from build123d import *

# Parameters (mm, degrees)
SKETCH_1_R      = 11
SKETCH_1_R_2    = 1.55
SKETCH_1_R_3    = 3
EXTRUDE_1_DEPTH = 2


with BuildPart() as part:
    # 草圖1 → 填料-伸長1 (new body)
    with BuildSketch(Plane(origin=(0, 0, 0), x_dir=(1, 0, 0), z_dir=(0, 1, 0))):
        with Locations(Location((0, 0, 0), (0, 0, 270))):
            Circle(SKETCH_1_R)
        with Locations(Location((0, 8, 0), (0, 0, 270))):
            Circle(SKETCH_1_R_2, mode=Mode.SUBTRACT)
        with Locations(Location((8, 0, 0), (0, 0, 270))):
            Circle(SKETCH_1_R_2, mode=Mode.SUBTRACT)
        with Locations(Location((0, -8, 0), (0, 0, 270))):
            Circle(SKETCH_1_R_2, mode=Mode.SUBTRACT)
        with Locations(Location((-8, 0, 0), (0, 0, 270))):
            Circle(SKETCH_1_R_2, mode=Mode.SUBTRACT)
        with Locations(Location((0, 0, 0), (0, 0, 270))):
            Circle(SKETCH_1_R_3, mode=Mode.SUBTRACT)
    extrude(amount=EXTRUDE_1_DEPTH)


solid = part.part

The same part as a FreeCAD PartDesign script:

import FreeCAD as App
import Part
import Sketcher
from FreeCAD import Vector
Q = App.Units.Quantity

doc = App.newDocument("Part")
params = doc.addObject("Spreadsheet::Sheet", "Params")
for row, (alias, value) in enumerate([
    ("sketch1_diameter", "22 mm"),
    ("sketch1_diameter2", "6 mm"),
    ("sketch1_diameter3", "3.1 mm"),
    ("pad1_length", "2 mm"),
], start=1):
    params.set(f"A{row}", alias)
    params.set(f"B{row}", "=" + value)
    params.setAlias(f"B{row}", alias)

body = doc.addObject("PartDesign::Body", "Body")

# Sketch on XZ plane
sketch1 = body.newObject("Sketcher::SketchObject", "Sketch")
sketch1.AttachmentSupport = (doc.getObject("XZ_Plane"), [""])
sketch1.MapMode = "FlatFace"
sketch1.addGeometry([
    Part.Circle(Vector(0, 0, 0), Vector(0, 0, 1), 11),  # 0
    Part.Circle(Vector(-8, 0, 0), Vector(0, 0, 1), 1.6),  # 1
    Part.Circle(Vector(0, -8, 0), Vector(0, 0, 1), 1.6),  # 2
    Part.Circle(Vector(0, 0, 0), Vector(0, 0, 1), 3),  # 3
    Part.Circle(Vector(0, 8, 0), Vector(0, 0, 1), 1.6),  # 4
    Part.Circle(Vector(8, 0, 0), Vector(0, 0, 1), 1.6),  # 5
], False)
sketch1.addConstraint([
    Sketcher.Constraint("Coincident", 0, 3, -1, 1),
    Sketcher.Constraint("Coincident", 3, 3, -1, 1),
    Sketcher.Constraint("Equal", 1, 2),
    Sketcher.Constraint("Equal", 2, 4),
    Sketcher.Constraint("Equal", 4, 5),
    Sketcher.Constraint("Symmetric", 2, 3, 4, 3, -1, 1),
    Sketcher.Constraint("Symmetric", 1, 3, 5, 3, -1, 1),
    Sketcher.Constraint("PointOnObject", 1, 3, -1),
    Sketcher.Constraint("PointOnObject", 2, 3, -2),
    Sketcher.Constraint("Diameter", 0, Q("22 mm")),
    Sketcher.Constraint("Diameter", 3, Q("6 mm")),
    Sketcher.Constraint("Diameter", 1, Q("3.1 mm")),
    Sketcher.Constraint("DistanceX", 1, 3, -1, 1, Q("8 mm")),
    Sketcher.Constraint("DistanceY", 2, 3, -1, 1, Q("8 mm")),
])
sketch1.setExpression("Constraints[9]", "Params.sketch1_diameter")
sketch1.setExpression("Constraints[10]", "Params.sketch1_diameter2")
sketch1.setExpression("Constraints[11]", "Params.sketch1_diameter3")
pad1 = body.newObject("PartDesign::Pad", "Pad")
pad1.Profile = sketch1
pad1.setExpression("Length", "Params.pad1_length")
pad1.Reversed = True

doc.recompute()
